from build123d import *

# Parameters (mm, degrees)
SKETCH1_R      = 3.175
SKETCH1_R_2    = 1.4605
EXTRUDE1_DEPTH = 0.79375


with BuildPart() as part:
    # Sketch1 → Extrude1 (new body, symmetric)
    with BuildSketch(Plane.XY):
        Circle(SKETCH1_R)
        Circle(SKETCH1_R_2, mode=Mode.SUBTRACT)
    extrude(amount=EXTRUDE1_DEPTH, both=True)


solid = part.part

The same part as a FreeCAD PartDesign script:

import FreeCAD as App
import Part
import Sketcher

V = App.Vector
Q = App.Units.Quantity

doc = App.newDocument("Part")
body = doc.addObject("PartDesign::Body", "Body")

# Sketch on XY plane
sketch1 = body.newObject("Sketcher::SketchObject", "Sketch")
sketch1.AttachmentSupport = (doc.getObject("XY_Plane"), [""])
sketch1.MapMode = "FlatFace"
sketch1.addGeometry([
    Part.Circle(V(0, 0, 0), V(0, 0, 1), 3.2),
    Part.Circle(V(0, 0, 0), V(0, 0, 1), 1.5),
], False)
sketch1.addConstraint([
    Sketcher.Constraint("Coincident", 0, 3, -1, 1),
    Sketcher.Constraint("Coincident", 1, 3, -1, 1),
    Sketcher.Constraint("Diameter", 0, Q("0.25 in")),
    Sketcher.Constraint("Diameter", 1, Q("0.115 in")),
])
pad1 = body.newObject("PartDesign::Pad", "Pad")
pad1.Profile = sketch1
pad1.Length = Q("0.0625 in")
pad1.Midplane = True

doc.recompute()
